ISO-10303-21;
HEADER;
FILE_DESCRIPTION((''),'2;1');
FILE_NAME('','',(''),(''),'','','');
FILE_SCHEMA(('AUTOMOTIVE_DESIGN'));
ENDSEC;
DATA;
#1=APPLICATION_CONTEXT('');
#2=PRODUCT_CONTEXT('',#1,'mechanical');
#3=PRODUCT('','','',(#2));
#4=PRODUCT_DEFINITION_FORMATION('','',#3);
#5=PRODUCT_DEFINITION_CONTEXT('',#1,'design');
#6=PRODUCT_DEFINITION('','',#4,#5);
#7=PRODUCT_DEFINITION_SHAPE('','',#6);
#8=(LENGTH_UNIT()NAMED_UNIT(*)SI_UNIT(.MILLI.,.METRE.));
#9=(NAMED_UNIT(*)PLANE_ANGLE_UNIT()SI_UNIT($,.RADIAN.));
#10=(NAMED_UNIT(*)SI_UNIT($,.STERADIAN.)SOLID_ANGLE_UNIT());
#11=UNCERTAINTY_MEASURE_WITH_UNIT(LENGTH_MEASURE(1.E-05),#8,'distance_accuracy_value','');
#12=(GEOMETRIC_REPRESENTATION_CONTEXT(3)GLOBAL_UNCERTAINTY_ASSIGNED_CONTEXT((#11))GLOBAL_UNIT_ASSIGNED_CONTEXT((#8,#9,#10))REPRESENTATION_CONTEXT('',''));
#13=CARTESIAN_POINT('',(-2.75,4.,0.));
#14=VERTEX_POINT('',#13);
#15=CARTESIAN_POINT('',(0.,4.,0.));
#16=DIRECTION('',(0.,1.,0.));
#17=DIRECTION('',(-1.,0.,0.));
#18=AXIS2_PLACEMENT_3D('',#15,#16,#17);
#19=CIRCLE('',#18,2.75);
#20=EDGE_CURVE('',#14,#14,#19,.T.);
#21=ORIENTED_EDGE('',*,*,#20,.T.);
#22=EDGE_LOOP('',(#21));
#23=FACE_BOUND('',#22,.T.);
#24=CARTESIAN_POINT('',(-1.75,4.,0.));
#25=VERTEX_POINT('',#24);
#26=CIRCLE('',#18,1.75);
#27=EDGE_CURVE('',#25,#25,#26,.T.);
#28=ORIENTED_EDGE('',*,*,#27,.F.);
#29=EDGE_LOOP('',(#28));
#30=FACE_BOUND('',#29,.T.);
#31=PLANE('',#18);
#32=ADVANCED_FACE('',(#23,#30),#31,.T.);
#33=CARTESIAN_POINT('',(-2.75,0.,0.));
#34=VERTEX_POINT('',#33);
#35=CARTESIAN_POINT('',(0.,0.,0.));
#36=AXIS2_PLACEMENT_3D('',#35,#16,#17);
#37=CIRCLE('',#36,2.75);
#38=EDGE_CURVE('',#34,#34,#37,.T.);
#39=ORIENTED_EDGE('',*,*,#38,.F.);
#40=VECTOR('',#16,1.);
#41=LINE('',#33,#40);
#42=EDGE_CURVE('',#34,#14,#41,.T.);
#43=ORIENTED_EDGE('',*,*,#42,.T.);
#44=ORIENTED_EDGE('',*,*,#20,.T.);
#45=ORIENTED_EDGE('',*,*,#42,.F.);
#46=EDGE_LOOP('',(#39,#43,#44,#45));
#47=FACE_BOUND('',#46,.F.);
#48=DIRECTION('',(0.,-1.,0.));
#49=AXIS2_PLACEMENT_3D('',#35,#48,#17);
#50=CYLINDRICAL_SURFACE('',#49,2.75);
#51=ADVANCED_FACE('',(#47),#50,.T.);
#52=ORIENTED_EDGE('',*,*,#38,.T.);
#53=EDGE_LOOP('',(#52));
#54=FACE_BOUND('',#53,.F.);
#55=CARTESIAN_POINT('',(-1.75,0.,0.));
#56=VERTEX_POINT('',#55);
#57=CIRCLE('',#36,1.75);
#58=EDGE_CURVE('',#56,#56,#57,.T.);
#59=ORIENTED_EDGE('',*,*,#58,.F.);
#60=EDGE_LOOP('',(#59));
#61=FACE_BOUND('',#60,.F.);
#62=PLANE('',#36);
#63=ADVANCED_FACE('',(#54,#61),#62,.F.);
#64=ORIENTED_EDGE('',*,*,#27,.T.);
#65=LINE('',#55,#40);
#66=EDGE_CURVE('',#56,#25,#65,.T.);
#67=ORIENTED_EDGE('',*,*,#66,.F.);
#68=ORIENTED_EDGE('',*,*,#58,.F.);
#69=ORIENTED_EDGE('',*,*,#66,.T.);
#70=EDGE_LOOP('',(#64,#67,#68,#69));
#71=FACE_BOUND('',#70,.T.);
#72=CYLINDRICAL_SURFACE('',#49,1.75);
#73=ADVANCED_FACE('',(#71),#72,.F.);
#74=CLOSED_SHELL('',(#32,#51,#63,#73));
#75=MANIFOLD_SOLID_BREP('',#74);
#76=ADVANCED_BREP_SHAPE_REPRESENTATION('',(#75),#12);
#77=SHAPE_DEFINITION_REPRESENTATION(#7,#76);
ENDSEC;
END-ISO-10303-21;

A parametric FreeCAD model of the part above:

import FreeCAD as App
import Part
import Sketcher
from FreeCAD import Vector

doc = App.newDocument("Part")
body = doc.addObject("PartDesign::Body", "Body")

# Sketch on XZ plane
sketch1 = body.newObject("Sketcher::SketchObject", "Sketch")
sketch1.AttachmentSupport = (doc.getObject("XZ_Plane"), [""])
sketch1.MapMode = "FlatFace"
sketch1.addGeometry([
    Part.Circle(Vector(0, 0, 0), Vector(0, 0, 1), 2.8),
    Part.Circle(Vector(0, 0, 0), Vector(0, 0, 1), 1.8),
], False)
sketch1.addConstraint([
    Sketcher.Constraint("Coincident", 0, 3, -1, 1),
    Sketcher.Constraint("Coincident", 1, 3, -1, 1),
    Sketcher.Constraint("Diameter", 1, 3.5),
    Sketcher.Constraint("Diameter", 0, 5.5),
])
pad1 = body.newObject("PartDesign::Pad", "Pad")
pad1.Profile = sketch1
pad1.Length = 4
pad1.Reversed = True

doc.recompute()
